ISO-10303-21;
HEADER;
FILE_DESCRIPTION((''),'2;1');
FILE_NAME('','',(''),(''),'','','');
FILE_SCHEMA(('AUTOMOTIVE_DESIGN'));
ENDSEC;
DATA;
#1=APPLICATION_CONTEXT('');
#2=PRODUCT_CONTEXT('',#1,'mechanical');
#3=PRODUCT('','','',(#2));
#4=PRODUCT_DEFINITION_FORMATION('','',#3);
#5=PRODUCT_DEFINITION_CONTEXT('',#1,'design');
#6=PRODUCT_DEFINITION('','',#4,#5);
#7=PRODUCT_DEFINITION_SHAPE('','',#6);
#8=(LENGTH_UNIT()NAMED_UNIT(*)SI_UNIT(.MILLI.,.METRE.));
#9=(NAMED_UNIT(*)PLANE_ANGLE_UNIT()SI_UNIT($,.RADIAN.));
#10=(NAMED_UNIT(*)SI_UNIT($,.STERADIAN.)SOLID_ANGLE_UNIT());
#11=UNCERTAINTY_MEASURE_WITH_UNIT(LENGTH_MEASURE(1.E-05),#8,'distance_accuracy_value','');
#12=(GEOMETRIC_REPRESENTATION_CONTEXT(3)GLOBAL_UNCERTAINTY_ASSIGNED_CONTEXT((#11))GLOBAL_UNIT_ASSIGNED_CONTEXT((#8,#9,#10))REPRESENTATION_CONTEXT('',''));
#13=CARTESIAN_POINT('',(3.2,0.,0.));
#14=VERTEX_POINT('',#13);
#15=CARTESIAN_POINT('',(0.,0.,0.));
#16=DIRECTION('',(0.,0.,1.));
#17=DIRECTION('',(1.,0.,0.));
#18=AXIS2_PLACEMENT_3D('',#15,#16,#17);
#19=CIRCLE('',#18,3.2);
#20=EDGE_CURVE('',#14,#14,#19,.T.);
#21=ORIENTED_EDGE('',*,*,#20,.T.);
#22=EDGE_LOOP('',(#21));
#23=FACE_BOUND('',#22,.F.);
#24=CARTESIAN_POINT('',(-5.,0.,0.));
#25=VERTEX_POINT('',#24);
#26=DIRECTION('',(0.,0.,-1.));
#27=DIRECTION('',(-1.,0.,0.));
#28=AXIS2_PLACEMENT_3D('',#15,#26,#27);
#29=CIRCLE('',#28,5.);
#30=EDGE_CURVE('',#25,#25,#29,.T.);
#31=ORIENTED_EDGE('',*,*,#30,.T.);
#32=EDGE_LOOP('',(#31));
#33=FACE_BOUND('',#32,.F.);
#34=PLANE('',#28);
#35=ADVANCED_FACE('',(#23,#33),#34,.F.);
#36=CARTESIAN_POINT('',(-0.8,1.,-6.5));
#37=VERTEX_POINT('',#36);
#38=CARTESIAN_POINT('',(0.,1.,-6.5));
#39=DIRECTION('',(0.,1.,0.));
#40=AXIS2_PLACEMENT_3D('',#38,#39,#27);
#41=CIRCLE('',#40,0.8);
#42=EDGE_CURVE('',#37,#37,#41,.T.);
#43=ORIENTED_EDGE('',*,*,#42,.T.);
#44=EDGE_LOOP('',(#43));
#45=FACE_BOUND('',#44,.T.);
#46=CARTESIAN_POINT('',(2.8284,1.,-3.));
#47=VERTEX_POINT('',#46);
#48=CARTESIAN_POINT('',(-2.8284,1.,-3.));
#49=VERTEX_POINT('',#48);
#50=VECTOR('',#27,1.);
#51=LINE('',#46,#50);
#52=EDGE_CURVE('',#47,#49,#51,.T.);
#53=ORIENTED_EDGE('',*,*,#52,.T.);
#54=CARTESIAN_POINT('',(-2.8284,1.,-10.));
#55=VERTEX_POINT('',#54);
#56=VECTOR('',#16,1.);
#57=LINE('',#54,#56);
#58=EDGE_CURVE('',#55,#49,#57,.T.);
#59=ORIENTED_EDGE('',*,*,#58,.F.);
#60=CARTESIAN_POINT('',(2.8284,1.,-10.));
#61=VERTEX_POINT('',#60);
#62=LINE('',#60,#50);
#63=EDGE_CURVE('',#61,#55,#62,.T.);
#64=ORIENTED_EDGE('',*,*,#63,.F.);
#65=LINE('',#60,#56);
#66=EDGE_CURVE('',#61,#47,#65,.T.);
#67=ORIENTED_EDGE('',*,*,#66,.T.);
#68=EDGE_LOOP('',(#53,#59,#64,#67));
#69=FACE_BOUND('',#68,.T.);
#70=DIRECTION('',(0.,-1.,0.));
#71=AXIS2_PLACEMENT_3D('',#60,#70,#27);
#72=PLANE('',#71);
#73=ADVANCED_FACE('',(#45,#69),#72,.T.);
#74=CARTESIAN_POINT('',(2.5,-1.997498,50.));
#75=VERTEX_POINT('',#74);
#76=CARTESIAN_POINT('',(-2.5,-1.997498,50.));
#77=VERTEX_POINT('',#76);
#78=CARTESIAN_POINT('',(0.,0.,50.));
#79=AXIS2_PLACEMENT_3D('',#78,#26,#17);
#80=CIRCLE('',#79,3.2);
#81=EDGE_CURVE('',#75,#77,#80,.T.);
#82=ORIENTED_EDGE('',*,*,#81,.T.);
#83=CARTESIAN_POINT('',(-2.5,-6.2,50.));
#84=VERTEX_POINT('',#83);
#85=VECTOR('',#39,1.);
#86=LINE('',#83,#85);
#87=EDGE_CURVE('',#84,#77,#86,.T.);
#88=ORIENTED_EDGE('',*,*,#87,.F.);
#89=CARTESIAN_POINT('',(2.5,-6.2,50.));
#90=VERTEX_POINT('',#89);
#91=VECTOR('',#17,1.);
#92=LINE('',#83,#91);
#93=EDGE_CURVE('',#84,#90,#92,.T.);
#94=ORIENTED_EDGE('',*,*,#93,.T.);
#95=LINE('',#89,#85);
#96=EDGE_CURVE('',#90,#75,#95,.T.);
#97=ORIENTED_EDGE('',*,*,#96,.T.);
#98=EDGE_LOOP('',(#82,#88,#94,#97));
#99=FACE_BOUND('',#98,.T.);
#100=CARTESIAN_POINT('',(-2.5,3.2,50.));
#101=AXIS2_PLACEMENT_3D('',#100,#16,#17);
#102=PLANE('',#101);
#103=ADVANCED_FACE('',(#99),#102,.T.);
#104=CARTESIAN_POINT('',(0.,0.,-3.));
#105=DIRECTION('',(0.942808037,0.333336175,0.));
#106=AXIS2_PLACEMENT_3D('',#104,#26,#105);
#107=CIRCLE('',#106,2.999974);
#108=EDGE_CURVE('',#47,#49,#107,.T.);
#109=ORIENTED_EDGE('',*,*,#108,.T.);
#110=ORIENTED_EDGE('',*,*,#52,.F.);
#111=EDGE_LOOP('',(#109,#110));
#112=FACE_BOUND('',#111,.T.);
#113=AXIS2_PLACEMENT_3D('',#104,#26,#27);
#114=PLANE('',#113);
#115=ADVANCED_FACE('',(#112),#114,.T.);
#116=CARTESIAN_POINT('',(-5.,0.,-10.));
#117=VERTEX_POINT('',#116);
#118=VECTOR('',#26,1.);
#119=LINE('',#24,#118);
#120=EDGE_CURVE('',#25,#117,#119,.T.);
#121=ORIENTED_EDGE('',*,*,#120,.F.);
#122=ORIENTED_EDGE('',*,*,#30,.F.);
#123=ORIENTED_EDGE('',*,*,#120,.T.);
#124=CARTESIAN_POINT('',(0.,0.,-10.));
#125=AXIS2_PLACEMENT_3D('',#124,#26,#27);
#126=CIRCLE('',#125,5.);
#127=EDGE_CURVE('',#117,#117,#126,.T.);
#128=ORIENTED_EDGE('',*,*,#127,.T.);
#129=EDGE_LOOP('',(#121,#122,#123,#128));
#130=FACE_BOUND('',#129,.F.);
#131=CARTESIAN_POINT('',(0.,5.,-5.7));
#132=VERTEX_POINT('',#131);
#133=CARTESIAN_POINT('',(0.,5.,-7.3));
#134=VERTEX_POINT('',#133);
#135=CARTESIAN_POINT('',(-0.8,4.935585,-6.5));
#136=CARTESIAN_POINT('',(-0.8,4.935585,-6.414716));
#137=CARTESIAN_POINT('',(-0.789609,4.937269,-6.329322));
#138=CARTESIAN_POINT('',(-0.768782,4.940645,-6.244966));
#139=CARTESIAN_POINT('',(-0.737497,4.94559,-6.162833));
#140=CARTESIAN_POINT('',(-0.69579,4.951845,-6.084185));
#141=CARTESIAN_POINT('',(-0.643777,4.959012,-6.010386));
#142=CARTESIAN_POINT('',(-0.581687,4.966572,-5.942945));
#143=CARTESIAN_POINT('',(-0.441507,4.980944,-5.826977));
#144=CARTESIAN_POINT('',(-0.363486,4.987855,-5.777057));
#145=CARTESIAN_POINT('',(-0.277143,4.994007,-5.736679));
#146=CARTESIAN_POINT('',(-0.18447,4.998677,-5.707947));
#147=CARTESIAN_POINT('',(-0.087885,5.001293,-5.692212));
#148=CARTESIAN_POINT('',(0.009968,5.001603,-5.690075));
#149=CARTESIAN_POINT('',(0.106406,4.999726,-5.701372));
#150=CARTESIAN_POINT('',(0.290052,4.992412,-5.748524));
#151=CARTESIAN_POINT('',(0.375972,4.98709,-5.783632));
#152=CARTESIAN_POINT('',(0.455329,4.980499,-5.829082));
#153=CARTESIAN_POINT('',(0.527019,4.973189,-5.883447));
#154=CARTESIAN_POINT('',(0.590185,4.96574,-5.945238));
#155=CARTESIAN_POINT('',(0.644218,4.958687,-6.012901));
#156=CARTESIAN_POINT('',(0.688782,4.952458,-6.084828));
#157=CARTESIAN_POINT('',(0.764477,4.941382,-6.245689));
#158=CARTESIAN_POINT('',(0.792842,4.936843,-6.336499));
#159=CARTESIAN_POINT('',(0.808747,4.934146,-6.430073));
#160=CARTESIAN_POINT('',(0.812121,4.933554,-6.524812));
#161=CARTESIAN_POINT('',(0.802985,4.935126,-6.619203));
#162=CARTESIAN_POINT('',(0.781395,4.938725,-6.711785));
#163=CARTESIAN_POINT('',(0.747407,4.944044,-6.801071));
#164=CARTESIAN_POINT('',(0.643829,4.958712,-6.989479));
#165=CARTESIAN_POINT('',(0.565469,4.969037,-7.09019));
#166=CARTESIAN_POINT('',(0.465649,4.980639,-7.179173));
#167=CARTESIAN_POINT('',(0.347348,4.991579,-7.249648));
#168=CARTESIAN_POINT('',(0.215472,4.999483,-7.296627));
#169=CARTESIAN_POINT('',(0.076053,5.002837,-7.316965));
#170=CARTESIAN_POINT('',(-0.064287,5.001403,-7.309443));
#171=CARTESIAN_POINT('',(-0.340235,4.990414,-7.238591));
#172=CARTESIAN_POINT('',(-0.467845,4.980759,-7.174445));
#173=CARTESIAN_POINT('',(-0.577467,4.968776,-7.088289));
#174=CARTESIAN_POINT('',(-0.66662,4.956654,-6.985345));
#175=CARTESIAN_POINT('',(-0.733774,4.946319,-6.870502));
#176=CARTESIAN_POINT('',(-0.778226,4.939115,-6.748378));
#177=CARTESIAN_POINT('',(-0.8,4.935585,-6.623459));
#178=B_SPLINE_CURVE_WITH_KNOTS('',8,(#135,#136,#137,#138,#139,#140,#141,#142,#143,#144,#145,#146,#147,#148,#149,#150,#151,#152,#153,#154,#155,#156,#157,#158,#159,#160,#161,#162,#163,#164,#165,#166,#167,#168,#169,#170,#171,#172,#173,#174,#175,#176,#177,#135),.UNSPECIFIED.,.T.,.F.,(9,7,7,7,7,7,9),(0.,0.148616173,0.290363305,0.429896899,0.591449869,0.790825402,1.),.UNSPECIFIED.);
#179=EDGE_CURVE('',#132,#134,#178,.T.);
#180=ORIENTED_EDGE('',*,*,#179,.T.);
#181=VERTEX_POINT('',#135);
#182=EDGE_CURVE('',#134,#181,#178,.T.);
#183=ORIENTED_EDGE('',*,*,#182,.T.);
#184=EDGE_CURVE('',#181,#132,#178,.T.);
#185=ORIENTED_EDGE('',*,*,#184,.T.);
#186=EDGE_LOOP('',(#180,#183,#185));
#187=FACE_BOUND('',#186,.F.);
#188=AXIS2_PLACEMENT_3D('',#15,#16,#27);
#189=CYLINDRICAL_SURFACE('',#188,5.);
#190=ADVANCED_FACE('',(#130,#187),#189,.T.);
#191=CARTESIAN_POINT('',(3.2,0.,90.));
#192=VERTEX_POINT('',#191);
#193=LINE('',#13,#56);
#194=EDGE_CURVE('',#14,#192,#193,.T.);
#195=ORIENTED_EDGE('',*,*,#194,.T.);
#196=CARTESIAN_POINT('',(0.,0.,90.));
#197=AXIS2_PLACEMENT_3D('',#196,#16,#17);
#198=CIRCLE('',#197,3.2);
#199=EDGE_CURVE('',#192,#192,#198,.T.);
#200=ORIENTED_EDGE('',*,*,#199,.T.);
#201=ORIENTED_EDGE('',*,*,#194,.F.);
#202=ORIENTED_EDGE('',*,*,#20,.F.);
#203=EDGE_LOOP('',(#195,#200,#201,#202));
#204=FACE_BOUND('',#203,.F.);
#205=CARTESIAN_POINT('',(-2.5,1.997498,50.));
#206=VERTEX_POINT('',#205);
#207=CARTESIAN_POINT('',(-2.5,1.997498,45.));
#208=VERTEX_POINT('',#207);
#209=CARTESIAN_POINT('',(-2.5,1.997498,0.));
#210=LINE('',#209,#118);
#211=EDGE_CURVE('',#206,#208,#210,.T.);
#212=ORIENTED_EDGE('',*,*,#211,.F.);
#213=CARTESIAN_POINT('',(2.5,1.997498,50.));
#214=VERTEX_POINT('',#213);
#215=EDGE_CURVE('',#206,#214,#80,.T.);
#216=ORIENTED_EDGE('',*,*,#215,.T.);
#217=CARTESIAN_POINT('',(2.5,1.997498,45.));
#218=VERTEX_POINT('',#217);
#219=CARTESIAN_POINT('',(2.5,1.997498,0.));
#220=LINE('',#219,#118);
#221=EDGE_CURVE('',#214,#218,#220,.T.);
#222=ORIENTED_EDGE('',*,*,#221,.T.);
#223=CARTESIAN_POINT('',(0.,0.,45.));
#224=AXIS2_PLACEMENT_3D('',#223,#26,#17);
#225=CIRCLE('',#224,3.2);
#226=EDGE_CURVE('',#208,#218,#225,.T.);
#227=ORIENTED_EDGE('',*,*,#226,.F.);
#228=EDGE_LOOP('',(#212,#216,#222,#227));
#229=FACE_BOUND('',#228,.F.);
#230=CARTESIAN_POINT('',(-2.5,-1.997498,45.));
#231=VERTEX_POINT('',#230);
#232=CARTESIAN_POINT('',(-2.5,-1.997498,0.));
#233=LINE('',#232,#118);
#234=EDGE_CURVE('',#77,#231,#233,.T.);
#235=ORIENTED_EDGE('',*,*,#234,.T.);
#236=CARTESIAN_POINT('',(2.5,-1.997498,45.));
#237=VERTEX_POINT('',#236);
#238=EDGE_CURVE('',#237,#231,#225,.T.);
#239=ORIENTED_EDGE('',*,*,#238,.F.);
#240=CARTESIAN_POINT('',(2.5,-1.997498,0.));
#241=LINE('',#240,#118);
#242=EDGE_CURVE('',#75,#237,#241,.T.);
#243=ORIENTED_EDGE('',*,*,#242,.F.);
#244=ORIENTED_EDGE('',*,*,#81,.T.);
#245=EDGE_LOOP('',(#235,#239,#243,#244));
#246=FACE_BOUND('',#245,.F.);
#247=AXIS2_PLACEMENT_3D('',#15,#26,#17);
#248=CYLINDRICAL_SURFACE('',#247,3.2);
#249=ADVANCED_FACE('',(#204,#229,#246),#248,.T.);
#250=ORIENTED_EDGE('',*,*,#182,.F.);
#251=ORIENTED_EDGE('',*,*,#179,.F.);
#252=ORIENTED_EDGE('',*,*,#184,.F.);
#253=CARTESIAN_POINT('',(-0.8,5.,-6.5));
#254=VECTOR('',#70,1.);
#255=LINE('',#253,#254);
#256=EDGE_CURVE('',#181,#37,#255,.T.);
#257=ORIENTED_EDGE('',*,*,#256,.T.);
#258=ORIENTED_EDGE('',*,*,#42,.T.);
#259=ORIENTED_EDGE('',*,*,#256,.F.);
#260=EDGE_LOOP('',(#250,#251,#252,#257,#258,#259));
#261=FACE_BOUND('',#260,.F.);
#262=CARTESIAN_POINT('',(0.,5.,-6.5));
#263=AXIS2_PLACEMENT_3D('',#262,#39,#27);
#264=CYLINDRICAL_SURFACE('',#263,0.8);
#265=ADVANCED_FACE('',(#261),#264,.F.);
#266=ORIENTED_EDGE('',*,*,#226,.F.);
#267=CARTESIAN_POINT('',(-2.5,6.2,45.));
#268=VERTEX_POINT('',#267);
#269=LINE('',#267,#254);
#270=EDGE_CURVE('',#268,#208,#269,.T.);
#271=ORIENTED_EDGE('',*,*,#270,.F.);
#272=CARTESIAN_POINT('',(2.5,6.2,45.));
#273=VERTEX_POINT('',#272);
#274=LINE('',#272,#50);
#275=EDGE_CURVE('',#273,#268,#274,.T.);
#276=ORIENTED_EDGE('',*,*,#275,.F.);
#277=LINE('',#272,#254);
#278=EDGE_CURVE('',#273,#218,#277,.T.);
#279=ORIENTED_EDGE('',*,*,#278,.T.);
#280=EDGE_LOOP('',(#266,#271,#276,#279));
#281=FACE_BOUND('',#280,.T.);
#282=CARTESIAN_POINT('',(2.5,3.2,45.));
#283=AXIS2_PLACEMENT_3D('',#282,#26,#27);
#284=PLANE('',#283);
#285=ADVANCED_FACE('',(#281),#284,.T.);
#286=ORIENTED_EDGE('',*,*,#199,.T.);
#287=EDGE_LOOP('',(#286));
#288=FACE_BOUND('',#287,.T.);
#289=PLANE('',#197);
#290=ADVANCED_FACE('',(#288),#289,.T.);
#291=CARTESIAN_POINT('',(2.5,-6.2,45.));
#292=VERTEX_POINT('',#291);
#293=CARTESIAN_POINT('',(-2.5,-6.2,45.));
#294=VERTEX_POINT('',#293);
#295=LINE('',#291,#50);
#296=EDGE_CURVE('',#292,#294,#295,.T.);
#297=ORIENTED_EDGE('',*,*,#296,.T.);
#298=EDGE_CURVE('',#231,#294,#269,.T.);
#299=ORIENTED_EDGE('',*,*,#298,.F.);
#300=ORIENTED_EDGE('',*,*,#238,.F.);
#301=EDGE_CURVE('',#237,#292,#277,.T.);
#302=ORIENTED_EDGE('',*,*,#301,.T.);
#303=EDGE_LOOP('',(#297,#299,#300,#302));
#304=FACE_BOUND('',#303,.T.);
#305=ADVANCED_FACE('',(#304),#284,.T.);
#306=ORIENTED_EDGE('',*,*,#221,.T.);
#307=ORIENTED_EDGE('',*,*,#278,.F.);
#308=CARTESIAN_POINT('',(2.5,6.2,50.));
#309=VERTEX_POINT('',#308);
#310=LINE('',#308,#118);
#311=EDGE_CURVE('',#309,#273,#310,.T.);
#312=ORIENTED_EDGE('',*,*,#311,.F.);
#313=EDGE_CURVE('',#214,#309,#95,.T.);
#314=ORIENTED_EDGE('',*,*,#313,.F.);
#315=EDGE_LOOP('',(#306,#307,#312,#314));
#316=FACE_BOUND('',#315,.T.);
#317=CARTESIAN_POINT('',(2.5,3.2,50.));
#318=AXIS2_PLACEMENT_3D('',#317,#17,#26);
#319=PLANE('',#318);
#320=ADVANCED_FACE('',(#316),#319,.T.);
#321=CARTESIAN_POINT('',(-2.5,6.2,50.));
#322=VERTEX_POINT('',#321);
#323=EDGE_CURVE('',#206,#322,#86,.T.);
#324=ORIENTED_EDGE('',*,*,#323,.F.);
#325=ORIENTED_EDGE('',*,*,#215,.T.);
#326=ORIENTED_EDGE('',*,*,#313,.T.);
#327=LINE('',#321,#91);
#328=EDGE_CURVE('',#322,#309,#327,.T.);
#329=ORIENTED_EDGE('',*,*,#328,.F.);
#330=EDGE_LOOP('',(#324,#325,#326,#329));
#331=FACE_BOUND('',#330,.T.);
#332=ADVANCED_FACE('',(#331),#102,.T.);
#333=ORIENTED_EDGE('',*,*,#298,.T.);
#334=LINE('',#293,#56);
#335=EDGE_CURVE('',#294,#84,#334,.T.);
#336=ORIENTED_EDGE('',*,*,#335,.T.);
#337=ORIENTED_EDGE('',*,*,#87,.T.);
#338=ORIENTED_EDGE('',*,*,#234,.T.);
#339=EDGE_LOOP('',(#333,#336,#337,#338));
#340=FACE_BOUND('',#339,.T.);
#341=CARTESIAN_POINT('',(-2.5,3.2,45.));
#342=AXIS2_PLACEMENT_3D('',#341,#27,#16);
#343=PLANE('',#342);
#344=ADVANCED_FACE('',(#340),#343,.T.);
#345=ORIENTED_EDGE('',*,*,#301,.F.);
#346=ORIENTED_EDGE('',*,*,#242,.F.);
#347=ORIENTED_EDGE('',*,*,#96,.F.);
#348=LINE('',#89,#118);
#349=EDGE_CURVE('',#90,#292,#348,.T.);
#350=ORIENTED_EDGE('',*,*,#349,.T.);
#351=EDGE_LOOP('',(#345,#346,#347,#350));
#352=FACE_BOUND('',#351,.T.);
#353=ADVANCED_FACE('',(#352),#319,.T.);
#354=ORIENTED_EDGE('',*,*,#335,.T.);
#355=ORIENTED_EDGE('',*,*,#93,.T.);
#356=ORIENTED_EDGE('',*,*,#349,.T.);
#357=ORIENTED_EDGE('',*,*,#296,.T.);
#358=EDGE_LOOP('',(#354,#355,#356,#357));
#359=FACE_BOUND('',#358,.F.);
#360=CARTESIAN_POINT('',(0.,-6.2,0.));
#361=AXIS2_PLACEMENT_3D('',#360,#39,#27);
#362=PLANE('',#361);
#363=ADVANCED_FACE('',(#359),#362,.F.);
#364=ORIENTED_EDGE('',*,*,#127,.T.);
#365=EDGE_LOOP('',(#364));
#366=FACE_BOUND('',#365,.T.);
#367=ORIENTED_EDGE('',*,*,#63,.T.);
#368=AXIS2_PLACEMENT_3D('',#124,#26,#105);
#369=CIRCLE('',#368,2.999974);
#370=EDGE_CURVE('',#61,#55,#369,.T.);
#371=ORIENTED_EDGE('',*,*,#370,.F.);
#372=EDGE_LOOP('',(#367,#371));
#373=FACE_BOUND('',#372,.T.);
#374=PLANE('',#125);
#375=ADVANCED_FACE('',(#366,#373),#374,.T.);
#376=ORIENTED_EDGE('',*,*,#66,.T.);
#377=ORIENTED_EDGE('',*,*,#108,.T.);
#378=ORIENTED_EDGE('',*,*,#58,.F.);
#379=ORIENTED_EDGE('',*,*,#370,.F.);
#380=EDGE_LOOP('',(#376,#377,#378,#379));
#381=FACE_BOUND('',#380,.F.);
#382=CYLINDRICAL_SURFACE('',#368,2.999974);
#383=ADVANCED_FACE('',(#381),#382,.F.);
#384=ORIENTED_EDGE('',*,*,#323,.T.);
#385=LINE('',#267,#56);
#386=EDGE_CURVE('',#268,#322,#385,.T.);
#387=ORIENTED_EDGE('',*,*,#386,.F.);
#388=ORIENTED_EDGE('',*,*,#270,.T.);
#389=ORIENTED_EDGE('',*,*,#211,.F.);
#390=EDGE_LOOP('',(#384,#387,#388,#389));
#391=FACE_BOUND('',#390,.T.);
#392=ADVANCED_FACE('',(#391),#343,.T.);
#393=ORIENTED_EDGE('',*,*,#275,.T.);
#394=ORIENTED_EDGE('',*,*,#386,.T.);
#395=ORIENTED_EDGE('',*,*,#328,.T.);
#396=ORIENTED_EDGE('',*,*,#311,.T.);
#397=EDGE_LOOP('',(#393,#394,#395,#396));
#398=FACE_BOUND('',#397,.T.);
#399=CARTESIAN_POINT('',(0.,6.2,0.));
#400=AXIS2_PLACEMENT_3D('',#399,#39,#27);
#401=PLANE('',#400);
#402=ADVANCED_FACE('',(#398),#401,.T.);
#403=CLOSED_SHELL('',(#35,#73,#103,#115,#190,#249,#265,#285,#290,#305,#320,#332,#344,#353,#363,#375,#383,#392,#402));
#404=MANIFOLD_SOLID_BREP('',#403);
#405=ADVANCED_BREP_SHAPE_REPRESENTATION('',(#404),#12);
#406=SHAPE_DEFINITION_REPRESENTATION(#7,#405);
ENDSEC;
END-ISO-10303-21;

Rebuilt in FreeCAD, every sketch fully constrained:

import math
import FreeCAD as App
import Part
import Sketcher
from FreeCAD import Vector

doc = App.newDocument("Part")
body = doc.addObject("PartDesign::Body", "Body")

sketch1 = body.newObject("Sketcher::SketchObject", "Sketch")
sketch1.AttachmentSupport = (doc.getObject("XY_Plane"), [""])
sketch1.MapMode = "FlatFace"
sketch1.addGeometry(Part.Circle(Vector(0, 0, 0), Vector(0, 0, 1), 3.2), False)
sketch1.addConstraint(Sketcher.Constraint("Coincident", 0, 3, -1, 1))
sketch1.addConstraint(Sketcher.Constraint("Diameter", 0, 6.4))
pad1 = body.newObject("PartDesign::Pad", "Pad")
pad1.Profile = sketch1
pad1.Length = 90

sketch2 = body.newObject("Sketcher::SketchObject", "Sketch001")
sketch2.AttachmentSupport = (doc.getObject("XZ_Plane"), [""])
sketch2.MapMode = "FlatFace"
sketch2.AttachmentOffset = App.Placement(Vector(0, 0, -3.2), App.Rotation())
sketch2.addGeometry(Part.LineSegment(Vector(-2.5, 45, 0), Vector(-2.5, 50, 0)), False)
sketch2.addGeometry(Part.LineSegment(Vector(-2.5, 50, 0), Vector(2.5, 50, 0)), False)
sketch2.addGeometry(Part.LineSegment(Vector(2.5, 50, 0), Vector(2.5, 45, 0)), False)
sketch2.addGeometry(Part.LineSegment(Vector(2.5, 45, 0), Vector(-2.5, 45, 0)), False)
sketch2.addConstraint(Sketcher.Constraint("Coincident", 0, 2, 1, 1))
sketch2.addConstraint(Sketcher.Constraint("Coincident", 1, 2, 2, 1))
sketch2.addConstraint(Sketcher.Constraint("Coincident", 2, 2, 3, 1))
sketch2.addConstraint(Sketcher.Constraint("Coincident", 3, 2, 0, 1))
sketch2.addConstraint(Sketcher.Constraint("Vertical", 0))
sketch2.addConstraint(Sketcher.Constraint("Horizontal", 1))
sketch2.addConstraint(Sketcher.Constraint("Vertical", 2))
sketch2.addConstraint(Sketcher.Constraint("Horizontal", 3))
sketch2.addConstraint(Sketcher.Constraint("Equal", 3, 0))
sketch2.addConstraint(Sketcher.Constraint("DistanceX", 1, 1, 1, 2, 5.0))
sketch2.addConstraint(Sketcher.Constraint("DistanceX", 0, 2, -1, 1, 2.5))
sketch2.addConstraint(Sketcher.Constraint("DistanceY", -1, 1, 0, 2, 50.0))
pad2 = body.newObject("PartDesign::Pad", "Pad001")
pad2.Profile = sketch2
pad2.Type = "TwoLengths"
pad2.Length = 9.4
pad2.Length2 = 3

sketch3 = body.newObject("Sketcher::SketchObject", "Sketch002")
sketch3.AttachmentSupport = (doc.getObject("XY_Plane"), [""])
sketch3.MapMode = "FlatFace"
sketch3.addGeometry(Part.Circle(Vector(0, 0, 0), Vector(0, 0, 1), 5), False)
sketch3.addConstraint(Sketcher.Constraint("Coincident", 0, 3, -1, 1))
sketch3.addConstraint(Sketcher.Constraint("Diameter", 0, 10.0))
pad3 = body.newObject("PartDesign::Pad", "Pad002")
pad3.Profile = sketch3
pad3.Length = 10
pad3.Reversed = True

sketch4 = body.newObject("Sketcher::SketchObject", "Sketch003")
sketch4.AttachmentSupport = (doc.getObject("XY_Plane"), [""])
sketch4.MapMode = "FlatFace"
sketch4.AttachmentOffset = App.Placement(Vector(0, 0, -10), App.Rotation())
sketch4.addGeometry(Part.LineSegment(Vector(-2.8284, 1, 0), Vector(2.8284, 1, 0)), False)
sketch4.addGeometry(Part.ArcOfCircle(Part.Circle(Vector(0, 0, 0), Vector(0, 0, 1), 2.999974), math.radians(160.528607), math.radians(379.471393)), False)
sketch4.addConstraint(Sketcher.Constraint("Coincident", 0, 1, 1, 1))
sketch4.addConstraint(Sketcher.Constraint("Coincident", 1, 2, 0, 2))
sketch4.addConstraint(Sketcher.Constraint("Horizontal", 0))
sketch4.addConstraint(Sketcher.Constraint("Coincident", 1, 3, -1, 1))
sketch4.addConstraint(Sketcher.Constraint("Radius", 1, 3.0))
sketch4.addConstraint(Sketcher.Constraint("DistanceY", -1, 1, 0, 1, 1.0))
pocket1 = body.newObject("PartDesign::Pocket", "Pocket")
pocket1.Profile = sketch4
pocket1.Length = 7
pocket1.Reversed = True

sketch5 = body.newObject("Sketcher::SketchObject", "Sketch004")
sketch5.AttachmentSupport = (doc.getObject("XZ_Plane"), [""])
sketch5.MapMode = "FlatFace"
sketch5.AttachmentOffset = App.Placement(Vector(0, 0, -5), App.Rotation())
sketch5.addGeometry(Part.Circle(Vector(0, -6.5, 0), Vector(0, 0, 1), 0.8), False)
sketch5.addConstraint(Sketcher.Constraint("PointOnObject", 0, 3, -2))
sketch5.addConstraint(Sketcher.Constraint("Diameter", 0, 1.6))
sketch5.addConstraint(Sketcher.Constraint("DistanceY", 0, 3, -1, 1, 6.5))
pocket2 = body.newObject("PartDesign::Pocket", "Pocket001")
pocket2.Profile = sketch5
pocket2.Type = "UpToFirst"
pocket2.Reversed = True

doc.recompute()
